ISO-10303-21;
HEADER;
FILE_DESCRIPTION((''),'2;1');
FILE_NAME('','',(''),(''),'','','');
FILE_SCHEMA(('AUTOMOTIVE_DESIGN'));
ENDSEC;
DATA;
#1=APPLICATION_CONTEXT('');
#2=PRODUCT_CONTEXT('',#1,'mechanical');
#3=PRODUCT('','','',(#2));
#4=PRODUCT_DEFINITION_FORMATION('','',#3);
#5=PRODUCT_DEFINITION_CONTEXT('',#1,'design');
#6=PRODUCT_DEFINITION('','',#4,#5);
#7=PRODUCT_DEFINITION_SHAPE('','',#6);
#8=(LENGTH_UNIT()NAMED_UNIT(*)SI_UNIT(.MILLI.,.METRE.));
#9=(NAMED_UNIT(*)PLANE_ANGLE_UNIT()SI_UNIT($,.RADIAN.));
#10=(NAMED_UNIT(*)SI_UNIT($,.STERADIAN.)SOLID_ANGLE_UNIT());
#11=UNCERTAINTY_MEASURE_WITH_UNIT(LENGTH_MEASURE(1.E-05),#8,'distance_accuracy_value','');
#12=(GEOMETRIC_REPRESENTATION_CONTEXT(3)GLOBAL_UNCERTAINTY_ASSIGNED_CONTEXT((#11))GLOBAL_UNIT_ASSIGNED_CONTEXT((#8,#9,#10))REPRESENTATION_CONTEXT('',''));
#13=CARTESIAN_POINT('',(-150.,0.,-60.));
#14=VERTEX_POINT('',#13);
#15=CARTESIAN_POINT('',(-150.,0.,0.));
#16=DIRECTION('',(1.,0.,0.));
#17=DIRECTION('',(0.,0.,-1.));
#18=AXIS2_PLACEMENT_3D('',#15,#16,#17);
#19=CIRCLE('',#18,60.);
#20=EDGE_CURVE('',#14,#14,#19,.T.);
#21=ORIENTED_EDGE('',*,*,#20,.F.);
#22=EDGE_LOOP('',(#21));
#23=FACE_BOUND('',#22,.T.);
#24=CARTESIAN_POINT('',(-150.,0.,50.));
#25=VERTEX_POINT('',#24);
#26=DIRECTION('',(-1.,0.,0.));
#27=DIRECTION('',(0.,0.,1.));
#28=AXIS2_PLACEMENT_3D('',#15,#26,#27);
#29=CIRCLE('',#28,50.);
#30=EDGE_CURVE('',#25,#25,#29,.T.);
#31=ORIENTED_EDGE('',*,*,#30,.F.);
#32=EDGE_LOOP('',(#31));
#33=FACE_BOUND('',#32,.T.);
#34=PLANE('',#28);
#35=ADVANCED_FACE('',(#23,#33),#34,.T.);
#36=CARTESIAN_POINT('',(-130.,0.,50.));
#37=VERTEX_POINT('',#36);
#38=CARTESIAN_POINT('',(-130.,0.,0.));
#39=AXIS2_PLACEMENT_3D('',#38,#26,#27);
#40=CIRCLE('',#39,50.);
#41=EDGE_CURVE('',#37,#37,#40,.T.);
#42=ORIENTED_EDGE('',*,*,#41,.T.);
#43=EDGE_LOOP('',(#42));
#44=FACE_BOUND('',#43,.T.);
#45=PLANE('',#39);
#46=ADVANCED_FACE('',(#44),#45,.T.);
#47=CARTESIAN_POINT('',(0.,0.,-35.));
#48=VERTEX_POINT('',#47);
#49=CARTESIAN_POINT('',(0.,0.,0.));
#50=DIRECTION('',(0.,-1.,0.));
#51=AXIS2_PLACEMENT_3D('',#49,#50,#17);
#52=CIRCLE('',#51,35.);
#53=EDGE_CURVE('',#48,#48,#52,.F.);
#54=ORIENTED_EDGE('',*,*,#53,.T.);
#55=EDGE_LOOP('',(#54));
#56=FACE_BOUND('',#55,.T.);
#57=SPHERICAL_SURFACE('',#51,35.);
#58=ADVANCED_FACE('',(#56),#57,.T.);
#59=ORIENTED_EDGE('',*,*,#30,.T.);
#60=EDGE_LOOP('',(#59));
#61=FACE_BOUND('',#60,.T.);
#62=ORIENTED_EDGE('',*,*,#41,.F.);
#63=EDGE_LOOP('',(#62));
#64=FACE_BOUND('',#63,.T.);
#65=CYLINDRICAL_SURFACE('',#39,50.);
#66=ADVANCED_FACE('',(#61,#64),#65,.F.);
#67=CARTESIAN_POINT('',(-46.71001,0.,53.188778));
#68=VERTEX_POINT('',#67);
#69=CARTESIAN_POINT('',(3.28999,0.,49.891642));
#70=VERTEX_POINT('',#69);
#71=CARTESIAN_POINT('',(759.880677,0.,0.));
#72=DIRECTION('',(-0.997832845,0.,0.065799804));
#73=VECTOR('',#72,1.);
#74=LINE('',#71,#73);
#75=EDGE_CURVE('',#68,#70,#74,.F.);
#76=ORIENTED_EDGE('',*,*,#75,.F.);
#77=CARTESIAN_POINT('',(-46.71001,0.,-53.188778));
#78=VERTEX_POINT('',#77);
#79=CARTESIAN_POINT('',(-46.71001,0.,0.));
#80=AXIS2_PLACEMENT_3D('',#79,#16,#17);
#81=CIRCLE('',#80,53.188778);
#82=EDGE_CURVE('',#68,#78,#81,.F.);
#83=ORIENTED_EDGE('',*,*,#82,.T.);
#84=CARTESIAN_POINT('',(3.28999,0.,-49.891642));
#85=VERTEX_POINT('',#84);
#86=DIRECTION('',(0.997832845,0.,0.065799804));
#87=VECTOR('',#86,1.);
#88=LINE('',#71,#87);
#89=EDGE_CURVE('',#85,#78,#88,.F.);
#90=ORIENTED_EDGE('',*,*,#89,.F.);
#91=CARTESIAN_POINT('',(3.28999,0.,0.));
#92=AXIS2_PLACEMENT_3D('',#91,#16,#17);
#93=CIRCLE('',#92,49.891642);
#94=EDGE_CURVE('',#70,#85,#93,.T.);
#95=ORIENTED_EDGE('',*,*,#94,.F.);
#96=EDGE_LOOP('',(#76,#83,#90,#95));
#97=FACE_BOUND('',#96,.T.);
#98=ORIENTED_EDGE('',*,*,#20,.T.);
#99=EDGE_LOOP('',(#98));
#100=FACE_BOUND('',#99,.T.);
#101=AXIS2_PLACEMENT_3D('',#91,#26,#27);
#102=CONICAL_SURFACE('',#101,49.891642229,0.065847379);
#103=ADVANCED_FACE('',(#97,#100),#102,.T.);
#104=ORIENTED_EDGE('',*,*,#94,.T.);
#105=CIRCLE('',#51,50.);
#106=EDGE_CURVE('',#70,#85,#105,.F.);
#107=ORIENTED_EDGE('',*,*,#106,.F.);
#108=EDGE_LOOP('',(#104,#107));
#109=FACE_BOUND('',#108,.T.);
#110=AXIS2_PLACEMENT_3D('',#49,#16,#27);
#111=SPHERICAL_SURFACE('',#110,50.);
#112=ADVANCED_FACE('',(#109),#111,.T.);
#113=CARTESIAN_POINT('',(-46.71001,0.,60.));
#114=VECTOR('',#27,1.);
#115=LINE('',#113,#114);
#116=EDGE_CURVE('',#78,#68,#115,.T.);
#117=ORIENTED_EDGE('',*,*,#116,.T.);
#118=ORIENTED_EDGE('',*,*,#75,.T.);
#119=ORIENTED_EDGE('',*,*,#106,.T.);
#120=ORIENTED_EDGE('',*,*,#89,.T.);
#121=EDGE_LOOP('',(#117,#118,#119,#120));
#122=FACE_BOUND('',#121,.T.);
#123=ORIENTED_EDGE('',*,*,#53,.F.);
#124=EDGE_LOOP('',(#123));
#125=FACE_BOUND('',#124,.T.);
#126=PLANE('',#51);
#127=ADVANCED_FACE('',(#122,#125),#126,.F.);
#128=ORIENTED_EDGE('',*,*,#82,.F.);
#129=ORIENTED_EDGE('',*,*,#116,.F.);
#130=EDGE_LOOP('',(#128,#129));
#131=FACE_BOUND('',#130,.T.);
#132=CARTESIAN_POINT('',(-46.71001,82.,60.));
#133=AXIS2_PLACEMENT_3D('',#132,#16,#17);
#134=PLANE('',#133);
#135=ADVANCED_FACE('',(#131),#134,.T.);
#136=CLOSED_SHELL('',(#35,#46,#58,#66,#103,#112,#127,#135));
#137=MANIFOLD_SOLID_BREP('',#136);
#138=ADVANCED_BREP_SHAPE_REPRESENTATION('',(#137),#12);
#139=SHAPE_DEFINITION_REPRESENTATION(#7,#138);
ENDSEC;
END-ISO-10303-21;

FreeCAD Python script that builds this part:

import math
import FreeCAD as App
import Part
import Sketcher

V = App.Vector


def add_polygon(sketch, points):
    """Adds a closed chain of lines whose ends are joined by coincident constraints."""
    first, n = sketch.GeometryCount, len(points)
    for a, b in zip(points, points[1:] + points[:1]):
        sketch.addGeometry(Part.LineSegment(App.Vector(*a, 0), App.Vector(*b, 0)), False)
    for i in range(n):
        sketch.addConstraint(Sketcher.Constraint("Coincident", first + i, 2, first + (i + 1) % n, 1))

doc = App.newDocument("Part")
body = doc.addObject("PartDesign::Body", "Body")

# Sketch on XZ plane
sketch1 = doc.addObject("Sketcher::SketchObject", "Sketch")
body.addObject(sketch1)
sketch1.AttachmentSupport = (doc.XZ_Plane, [""])
sketch1.MapMode = "FlatFace"
sketch1.addGeometry([
    Part.LineSegment(V(-150, -60, 0), V(-150, 0, 0)),
    Part.LineSegment(V(-150, 0, 0), V(50, 0, 0)),
    Part.ArcOfCircle(Part.Circle(V(0, 0, 0), V(0, 0, 1), 50), math.radians(-86), math.radians(0)),
    Part.LineSegment(V(3, -50, 0), V(-150, -60, 0)),
], False)
sketch1.addConstraint([
    Sketcher.Constraint("Coincident", 0, 2, 1, 1),
    Sketcher.Constraint("Coincident", 1, 2, 2, 2),
    Sketcher.Constraint("Tangent", 2, 1, 3, 1),
    Sketcher.Constraint("Coincident", 3, 2, 0, 1),
    Sketcher.Constraint("Vertical", 0),
    Sketcher.Constraint("Horizontal", 1),
    Sketcher.Constraint("Coincident", 2, 3, -1, 1),
    Sketcher.Constraint("PointOnObject", 0, 2, -1),
    Sketcher.Constraint("Radius", 2, 50.0),
    Sketcher.Constraint("DistanceX", 1, 1, 1, 2, 200.0),
    Sketcher.Constraint("DistanceY", 0, 1, 0, 2, 60.0),
])
revolution = doc.addObject("PartDesign::Revolution", "Revolution")
body.addObject(revolution)
revolution.Profile = sketch1
revolution.ReferenceAxis = (sketch1, ["H_Axis"])
revolution.Angle = 360

# Sketch on XZ plane
sketch2 = doc.addObject("Sketcher::SketchObject", "Sketch001")
body.addObject(sketch2)
sketch2.AttachmentSupport = (doc.XZ_Plane, [""])
sketch2.MapMode = "FlatFace"
add_polygon(sketch2, [(-47, -60), (-47, 60), (53, 60), (53, -60)])  # lines 0-3
sketch2.addConstraint([
    Sketcher.Constraint("Vertical", 0),
    Sketcher.Constraint("Horizontal", 1),
    Sketcher.Constraint("Vertical", 2),
    Sketcher.Constraint("Horizontal", 3),
    Sketcher.Constraint("DistanceX", 1, 1, 1, 2, 100.0),
    Sketcher.Constraint("DistanceY", 0, 1, 0, 2, 120.0),
    Sketcher.Constraint("DistanceY", -1, 1, 0, 2, 60.0),
    Sketcher.Constraint("DistanceX", 0, 2, -1, 1, 46.71001),
])
pocket1 = doc.addObject("PartDesign::Pocket", "Pocket")
body.addObject(pocket1)
pocket1.Profile = sketch2
pocket1.Length = 82

# Sketch on XZ plane
sketch3 = doc.addObject("Sketcher::SketchObject", "Sketch002")
body.addObject(sketch3)
sketch3.AttachmentSupport = (doc.XZ_Plane, [""])
sketch3.MapMode = "FlatFace"
sketch3.addGeometry([
    Part.LineSegment(V(-35, 0, 0), V(35, 0, 0)),
    Part.ArcOfCircle(Part.Circle(V(0, 0, 0), V(0, 0, 1), 35), math.radians(180), math.radians(360)),
], False)
sketch3.addConstraint([
    Sketcher.Constraint("Coincident", 0, 1, 1, 1),
    Sketcher.Constraint("Coincident", 1, 2, 0, 2),
    Sketcher.Constraint("Horizontal", 0),
    Sketcher.Constraint("Coincident", 1, 3, -1, 1),
    Sketcher.Constraint("PointOnObject", 0, 1, -1),
    Sketcher.Constraint("Radius", 1, 35.0),
])
revolution2 = doc.addObject("PartDesign::Revolution", "Revolution001")
body.addObject(revolution2)
revolution2.Profile = sketch3
revolution2.ReferenceAxis = (sketch3, ["H_Axis"])
revolution2.Angle = 360

# Sketch on YZ plane
sketch4 = doc.addObject("Sketcher::SketchObject", "Sketch003")
body.addObject(sketch4)
sketch4.AttachmentSupport = (doc.YZ_Plane, [""])
sketch4.MapMode = "FlatFace"
sketch4.AttachmentOffset = App.Placement(V(0, 0, -150), App.Rotation())
sketch4.addGeometry(Part.Circle(V(0, 0, 0), V(0, 0, 1), 50), False)
sketch4.addConstraint([
    Sketcher.Constraint("Coincident", 0, 3, -1, 1),
    Sketcher.Constraint("Diameter", 0, 100.0),
])
pocket2 = doc.addObject("PartDesign::Pocket", "Pocket001")
body.addObject(pocket2)
pocket2.Profile = sketch4
pocket2.Length = 20
pocket2.Reversed = True

doc.recompute()
